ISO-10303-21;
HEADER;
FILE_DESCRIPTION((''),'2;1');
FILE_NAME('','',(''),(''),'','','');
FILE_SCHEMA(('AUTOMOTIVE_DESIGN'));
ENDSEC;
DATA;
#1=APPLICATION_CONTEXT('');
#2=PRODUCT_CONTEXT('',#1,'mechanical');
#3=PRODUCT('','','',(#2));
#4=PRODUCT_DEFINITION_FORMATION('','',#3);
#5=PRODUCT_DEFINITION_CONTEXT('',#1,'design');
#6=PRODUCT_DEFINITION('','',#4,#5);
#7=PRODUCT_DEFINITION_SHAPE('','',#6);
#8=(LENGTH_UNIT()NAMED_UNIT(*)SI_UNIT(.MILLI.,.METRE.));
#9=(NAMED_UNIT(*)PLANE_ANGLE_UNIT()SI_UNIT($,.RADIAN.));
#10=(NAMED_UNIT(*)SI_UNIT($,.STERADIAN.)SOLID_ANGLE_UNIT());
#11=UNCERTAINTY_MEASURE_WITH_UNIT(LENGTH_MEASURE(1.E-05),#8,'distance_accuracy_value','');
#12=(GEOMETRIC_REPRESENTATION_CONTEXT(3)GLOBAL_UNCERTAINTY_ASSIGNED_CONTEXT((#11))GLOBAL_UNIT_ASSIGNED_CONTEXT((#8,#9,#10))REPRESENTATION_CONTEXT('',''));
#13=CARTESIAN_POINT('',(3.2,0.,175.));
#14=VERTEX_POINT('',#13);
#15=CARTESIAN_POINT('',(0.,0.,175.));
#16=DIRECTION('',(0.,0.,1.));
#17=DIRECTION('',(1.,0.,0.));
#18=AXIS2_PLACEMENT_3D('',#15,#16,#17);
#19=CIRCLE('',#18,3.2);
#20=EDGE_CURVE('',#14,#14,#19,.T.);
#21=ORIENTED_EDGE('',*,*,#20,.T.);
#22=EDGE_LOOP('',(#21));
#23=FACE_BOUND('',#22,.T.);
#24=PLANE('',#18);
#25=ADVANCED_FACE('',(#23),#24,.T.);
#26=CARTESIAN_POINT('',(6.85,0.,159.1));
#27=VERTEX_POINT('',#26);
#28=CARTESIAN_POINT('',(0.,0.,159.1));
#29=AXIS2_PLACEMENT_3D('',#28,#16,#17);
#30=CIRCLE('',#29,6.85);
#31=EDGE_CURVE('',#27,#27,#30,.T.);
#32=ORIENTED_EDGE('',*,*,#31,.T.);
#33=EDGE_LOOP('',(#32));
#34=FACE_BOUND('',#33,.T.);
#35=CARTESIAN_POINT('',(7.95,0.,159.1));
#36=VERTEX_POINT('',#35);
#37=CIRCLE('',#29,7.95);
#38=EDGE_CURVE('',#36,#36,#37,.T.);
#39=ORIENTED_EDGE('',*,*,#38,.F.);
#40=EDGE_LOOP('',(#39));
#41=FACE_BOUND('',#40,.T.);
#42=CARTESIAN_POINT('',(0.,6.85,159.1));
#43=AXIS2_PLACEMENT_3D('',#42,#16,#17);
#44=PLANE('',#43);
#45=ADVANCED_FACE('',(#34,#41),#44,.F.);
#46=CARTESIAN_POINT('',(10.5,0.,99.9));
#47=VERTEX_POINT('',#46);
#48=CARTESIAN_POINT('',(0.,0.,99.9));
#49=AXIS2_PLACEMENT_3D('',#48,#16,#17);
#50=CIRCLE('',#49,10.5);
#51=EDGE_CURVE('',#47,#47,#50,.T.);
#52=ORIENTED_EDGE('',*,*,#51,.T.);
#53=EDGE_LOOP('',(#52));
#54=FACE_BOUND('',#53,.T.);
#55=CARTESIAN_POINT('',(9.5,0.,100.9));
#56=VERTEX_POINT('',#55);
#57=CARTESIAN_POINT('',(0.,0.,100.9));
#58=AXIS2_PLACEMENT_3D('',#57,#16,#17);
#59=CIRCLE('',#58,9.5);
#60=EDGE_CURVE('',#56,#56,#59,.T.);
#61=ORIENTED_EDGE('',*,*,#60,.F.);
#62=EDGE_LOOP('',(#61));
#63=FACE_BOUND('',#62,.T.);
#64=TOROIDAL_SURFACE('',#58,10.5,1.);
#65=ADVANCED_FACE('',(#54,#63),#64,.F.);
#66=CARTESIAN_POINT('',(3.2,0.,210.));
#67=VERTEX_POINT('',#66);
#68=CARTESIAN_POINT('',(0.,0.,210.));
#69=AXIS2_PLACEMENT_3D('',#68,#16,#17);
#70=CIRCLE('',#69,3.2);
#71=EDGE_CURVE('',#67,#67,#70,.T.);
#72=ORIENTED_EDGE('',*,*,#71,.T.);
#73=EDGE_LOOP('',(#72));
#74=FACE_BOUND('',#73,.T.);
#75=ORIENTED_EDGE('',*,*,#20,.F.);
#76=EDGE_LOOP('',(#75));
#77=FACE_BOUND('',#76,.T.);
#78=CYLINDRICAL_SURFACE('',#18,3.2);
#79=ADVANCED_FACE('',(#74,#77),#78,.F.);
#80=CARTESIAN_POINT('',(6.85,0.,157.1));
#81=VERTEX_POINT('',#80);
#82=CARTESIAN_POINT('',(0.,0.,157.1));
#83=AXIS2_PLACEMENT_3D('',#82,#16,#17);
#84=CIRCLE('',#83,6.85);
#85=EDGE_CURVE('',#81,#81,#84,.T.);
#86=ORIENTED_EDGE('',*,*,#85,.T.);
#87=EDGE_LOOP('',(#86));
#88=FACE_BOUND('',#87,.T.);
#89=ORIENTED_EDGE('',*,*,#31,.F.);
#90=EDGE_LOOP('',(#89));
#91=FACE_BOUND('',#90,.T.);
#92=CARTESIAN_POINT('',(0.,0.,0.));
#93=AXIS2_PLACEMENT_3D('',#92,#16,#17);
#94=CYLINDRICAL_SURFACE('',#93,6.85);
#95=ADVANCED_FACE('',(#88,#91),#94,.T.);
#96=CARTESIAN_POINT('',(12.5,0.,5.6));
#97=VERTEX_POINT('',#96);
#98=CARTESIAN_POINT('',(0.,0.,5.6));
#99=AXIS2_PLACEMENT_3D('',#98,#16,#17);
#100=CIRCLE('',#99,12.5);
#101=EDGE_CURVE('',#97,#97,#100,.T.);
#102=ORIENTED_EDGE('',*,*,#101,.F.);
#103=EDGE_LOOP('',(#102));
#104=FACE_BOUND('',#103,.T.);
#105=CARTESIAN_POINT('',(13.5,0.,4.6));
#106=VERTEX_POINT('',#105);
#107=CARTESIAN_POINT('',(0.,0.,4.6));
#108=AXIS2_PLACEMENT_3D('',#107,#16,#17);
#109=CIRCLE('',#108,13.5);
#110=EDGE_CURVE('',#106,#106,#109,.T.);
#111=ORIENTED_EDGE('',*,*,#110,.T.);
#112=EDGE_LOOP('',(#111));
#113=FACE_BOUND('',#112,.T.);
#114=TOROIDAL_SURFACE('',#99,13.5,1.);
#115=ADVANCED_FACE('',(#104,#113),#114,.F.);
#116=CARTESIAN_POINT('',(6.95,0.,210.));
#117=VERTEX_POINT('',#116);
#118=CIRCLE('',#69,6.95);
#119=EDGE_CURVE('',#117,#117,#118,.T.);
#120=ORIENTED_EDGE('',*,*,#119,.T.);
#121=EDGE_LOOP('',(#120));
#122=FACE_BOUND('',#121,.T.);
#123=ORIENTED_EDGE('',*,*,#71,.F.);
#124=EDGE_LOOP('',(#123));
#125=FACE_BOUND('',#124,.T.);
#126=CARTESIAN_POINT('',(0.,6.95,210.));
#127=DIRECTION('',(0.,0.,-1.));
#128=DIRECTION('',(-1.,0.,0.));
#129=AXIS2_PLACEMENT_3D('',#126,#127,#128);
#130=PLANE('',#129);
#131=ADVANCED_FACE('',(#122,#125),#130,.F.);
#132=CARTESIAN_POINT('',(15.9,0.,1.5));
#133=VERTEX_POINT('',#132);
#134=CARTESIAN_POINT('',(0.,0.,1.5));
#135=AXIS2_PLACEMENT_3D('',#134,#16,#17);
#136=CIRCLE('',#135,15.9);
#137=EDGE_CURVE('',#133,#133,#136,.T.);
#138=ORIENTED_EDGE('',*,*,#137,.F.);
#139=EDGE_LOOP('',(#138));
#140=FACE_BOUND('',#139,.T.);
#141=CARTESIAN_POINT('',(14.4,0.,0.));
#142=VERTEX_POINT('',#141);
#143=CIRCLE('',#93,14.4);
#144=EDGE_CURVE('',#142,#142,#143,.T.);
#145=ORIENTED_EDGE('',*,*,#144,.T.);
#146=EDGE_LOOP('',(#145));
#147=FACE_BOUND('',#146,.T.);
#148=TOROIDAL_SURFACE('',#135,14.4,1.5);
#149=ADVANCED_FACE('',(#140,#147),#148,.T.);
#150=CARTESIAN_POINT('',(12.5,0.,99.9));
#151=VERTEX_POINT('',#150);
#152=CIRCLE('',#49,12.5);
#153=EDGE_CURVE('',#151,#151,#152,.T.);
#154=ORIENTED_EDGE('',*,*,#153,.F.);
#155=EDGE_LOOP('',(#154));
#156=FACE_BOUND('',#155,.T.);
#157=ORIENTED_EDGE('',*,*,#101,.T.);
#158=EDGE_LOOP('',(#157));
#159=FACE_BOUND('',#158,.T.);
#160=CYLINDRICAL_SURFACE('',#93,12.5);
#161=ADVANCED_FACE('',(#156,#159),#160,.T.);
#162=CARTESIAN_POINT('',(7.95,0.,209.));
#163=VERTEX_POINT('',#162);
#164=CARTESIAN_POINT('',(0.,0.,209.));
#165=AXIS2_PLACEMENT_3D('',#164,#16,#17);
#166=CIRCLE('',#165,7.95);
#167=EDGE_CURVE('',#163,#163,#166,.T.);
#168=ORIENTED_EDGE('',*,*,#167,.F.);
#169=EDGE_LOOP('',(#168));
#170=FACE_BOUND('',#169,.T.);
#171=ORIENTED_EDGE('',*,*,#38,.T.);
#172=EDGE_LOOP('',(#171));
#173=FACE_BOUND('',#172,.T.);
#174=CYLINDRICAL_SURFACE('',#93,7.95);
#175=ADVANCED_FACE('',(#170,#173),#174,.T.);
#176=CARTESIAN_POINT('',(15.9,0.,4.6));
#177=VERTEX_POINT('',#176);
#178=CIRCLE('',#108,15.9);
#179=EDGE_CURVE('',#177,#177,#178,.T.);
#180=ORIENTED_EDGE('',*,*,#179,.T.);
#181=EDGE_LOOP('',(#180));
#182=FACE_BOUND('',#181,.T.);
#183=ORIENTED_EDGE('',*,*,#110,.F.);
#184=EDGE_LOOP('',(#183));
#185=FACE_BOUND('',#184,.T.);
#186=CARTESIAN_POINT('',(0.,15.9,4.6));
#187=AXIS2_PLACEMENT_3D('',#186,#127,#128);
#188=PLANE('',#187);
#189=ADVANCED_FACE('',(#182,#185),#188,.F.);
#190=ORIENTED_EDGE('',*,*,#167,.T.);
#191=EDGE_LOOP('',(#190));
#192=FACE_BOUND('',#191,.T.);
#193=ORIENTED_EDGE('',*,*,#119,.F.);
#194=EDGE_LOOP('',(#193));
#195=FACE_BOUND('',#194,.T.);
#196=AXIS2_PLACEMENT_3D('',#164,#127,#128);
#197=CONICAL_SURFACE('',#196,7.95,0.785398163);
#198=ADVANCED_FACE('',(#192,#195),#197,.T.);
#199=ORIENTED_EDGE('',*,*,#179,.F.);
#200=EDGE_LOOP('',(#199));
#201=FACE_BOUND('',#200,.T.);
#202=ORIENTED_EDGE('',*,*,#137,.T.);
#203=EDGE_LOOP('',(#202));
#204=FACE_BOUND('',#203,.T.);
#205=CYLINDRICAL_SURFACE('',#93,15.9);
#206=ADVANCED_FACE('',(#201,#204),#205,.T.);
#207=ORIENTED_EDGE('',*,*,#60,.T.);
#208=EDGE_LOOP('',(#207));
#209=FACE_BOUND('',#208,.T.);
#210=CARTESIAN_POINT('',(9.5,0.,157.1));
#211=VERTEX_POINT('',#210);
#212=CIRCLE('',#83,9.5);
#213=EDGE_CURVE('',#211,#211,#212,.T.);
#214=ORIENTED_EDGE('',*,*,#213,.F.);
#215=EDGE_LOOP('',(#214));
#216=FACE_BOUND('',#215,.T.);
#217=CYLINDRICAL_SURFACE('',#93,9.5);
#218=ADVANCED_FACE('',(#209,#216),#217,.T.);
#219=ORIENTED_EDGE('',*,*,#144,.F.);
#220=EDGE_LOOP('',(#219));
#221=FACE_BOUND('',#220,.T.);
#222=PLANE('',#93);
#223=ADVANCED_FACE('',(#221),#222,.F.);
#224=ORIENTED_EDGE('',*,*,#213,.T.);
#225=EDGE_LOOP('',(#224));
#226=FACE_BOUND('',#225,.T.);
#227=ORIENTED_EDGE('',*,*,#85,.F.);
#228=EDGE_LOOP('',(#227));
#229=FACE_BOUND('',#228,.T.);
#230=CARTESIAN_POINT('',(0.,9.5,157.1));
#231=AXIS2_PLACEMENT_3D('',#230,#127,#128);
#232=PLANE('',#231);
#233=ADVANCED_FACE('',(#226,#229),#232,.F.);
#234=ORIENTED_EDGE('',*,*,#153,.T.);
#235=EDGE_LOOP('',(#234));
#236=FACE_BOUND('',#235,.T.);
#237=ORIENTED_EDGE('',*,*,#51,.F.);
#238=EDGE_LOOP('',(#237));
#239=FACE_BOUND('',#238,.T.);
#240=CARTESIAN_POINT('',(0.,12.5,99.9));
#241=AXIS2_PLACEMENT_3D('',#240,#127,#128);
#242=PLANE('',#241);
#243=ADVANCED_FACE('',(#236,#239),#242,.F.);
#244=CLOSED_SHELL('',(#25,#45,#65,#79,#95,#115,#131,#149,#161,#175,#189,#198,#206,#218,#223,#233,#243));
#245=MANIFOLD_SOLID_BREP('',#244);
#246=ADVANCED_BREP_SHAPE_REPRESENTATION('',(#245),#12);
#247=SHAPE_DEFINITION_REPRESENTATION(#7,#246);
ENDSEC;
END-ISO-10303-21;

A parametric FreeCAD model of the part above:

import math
import FreeCAD as App
import Part
import Sketcher

V = App.Vector
Q = App.Units.Quantity

doc = App.newDocument("Part")
body = doc.addObject("PartDesign::Body", "Body")

# Sketch on YZ plane
sketch1 = body.newObject("Sketcher::SketchObject", "Sketch")
sketch1.AttachmentSupport = (doc.getObject("YZ_Plane"), [""])
sketch1.MapMode = "FlatFace"
sketch1.addGeometry([
    Part.LineSegment(V(0, 0, 0), V(14.4, 0, 0)),  # 0
    Part.ArcOfCircle(Part.Circle(V(14.4, 1.5, 0), V(0, 0, 1), 1.5), math.radians(-90), math.radians(0)),  # 1
    Part.LineSegment(V(15.9, 1.5, 0), V(15.9, 4.6, 0)),  # 2
    Part.LineSegment(V(15.9, 4.6, 0), V(13.5, 4.6, 0)),  # 3
    Part.ArcOfCircle(Part.Circle(V(13.5, 5.6, 0), V(0, 0, 1), 1), math.radians(-180), math.radians(-90)),  # 4
    Part.LineSegment(V(12.5, 5.6, 0), V(12.5, 99.9, 0)),  # 5
    Part.LineSegment(V(12.5, 99.9, 0), V(10.5, 99.9, 0)),  # 6
    Part.ArcOfCircle(Part.Circle(V(10.5, 100.9, 0), V(0, 0, 1), 1), math.radians(-180), math.radians(-90)),  # 7
    Part.LineSegment(V(9.5, 100.9, 0), V(9.5, 157.1, 0)),  # 8
    Part.LineSegment(V(9.5, 157.1, 0), V(6.85, 157.1, 0)),  # 9
    Part.LineSegment(V(6.85, 157.1, 0), V(6.85, 159.1, 0)),  # 10
    Part.LineSegment(V(6.85, 159.1, 0), V(7.95, 159.1, 0)),  # 11
    Part.LineSegment(V(7.95, 159.1, 0), V(7.95, 209, 0)),  # 12
    Part.LineSegment(V(7.95, 209, 0), V(6.95, 210, 0)),  # 13
    Part.LineSegment(V(6.95, 210, 0), V(0, 210, 0)),  # 14
    Part.LineSegment(V(0, 210, 0), V(0, 0, 0)),  # 15
], False)
sketch1.addConstraint([
    Sketcher.Constraint("Tangent", 0, 2, 1, 1),
    Sketcher.Constraint("Tangent", 1, 2, 2, 1),
    Sketcher.Constraint("Coincident", 2, 2, 3, 1),
    Sketcher.Constraint("Tangent", 3, 2, 4, 2),
    Sketcher.Constraint("Tangent", 4, 1, 5, 1),
    Sketcher.Constraint("Coincident", 5, 2, 6, 1),
    Sketcher.Constraint("Tangent", 6, 2, 7, 2),
    Sketcher.Constraint("Tangent", 7, 1, 8, 1),
    Sketcher.Constraint("Coincident", 8, 2, 9, 1),
    Sketcher.Constraint("Coincident", 9, 2, 10, 1),
    Sketcher.Constraint("Coincident", 10, 2, 11, 1),
    Sketcher.Constraint("Coincident", 11, 2, 12, 1),
    Sketcher.Constraint("Coincident", 12, 2, 13, 1),
    Sketcher.Constraint("Coincident", 13, 2, 14, 1),
    Sketcher.Constraint("Coincident", 14, 2, 15, 1),
    Sketcher.Constraint("Coincident", 15, 2, 0, 1),
    Sketcher.Constraint("Horizontal", 0),
    Sketcher.Constraint("Vertical", 2),
    Sketcher.Constraint("Horizontal", 3),
    Sketcher.Constraint("Vertical", 5),
    Sketcher.Constraint("Horizontal", 6),
    Sketcher.Constraint("Vertical", 8),
    Sketcher.Constraint("Horizontal", 9),
    Sketcher.Constraint("Vertical", 10),
    Sketcher.Constraint("Horizontal", 11),
    Sketcher.Constraint("Vertical", 12),
    Sketcher.Constraint("Horizontal", 14),
    Sketcher.Constraint("Vertical", 15),
    Sketcher.Constraint("Coincident", 15, 2, -1, 1),
    Sketcher.Constraint("Equal", 4, 7),
    Sketcher.Constraint("Equal", 6, 10),
    Sketcher.Constraint("Radius", 4, Q("1 mm")),
    Sketcher.Constraint("Radius", 1, Q("1.5 mm")),
    Sketcher.Constraint("DistanceX", 6, 2, 6, 1, Q("2 mm")),
    Sketcher.Constraint("DistanceY", 15, 2, 15, 1, Q("210 mm")),
    Sketcher.Constraint("Angle", 13, Q("135 deg")),
    Sketcher.Constraint("DistanceX", 0, 1, 0, 2, Q("14.4 mm")),
    Sketcher.Constraint("DistanceX", 3, 2, 3, 1, Q("2.4 mm")),
    Sketcher.Constraint("DistanceX", 11, 1, 11, 2, Q("1.1 mm")),
    Sketcher.Constraint("DistanceY", 2, 1, 2, 2, Q("3.1 mm")),
    Sketcher.Constraint("DistanceY", 5, 1, 5, 2, Q("94.3 mm")),
    Sketcher.Constraint("DistanceY", 8, 1, 8, 2, Q("56.2 mm")),
    Sketcher.Constraint("DistanceY", 12, 1, 12, 2, Q("49.9 mm")),
    Sketcher.Constraint("DistanceX", 9, 2, 9, 1, Q("2.65 mm")),
])
revolution = body.newObject("PartDesign::Revolution", "Revolution")
revolution.Profile = sketch1
revolution.ReferenceAxis = (sketch1, ["V_Axis"])
revolution.Angle = 360

# Sketch on XY plane
sketch2 = body.newObject("Sketcher::SketchObject", "Sketch001")
sketch2.AttachmentSupport = (doc.getObject("XY_Plane"), [""])
sketch2.MapMode = "FlatFace"
sketch2.AttachmentOffset = App.Placement(V(0, 0, 210), App.Rotation())
sketch2.addGeometry(Part.Circle(V(0, 0, 0), V(0, 0, 1), 3.2), False)
sketch2.addConstraint([
    Sketcher.Constraint("Coincident", 0, 3, -1, 1),
    Sketcher.Constraint("Diameter", 0, Q("6.4 mm")),
])
pocket1 = body.newObject("PartDesign::Pocket", "Pocket")
pocket1.Profile = sketch2
pocket1.Length = 35

doc.recompute()
